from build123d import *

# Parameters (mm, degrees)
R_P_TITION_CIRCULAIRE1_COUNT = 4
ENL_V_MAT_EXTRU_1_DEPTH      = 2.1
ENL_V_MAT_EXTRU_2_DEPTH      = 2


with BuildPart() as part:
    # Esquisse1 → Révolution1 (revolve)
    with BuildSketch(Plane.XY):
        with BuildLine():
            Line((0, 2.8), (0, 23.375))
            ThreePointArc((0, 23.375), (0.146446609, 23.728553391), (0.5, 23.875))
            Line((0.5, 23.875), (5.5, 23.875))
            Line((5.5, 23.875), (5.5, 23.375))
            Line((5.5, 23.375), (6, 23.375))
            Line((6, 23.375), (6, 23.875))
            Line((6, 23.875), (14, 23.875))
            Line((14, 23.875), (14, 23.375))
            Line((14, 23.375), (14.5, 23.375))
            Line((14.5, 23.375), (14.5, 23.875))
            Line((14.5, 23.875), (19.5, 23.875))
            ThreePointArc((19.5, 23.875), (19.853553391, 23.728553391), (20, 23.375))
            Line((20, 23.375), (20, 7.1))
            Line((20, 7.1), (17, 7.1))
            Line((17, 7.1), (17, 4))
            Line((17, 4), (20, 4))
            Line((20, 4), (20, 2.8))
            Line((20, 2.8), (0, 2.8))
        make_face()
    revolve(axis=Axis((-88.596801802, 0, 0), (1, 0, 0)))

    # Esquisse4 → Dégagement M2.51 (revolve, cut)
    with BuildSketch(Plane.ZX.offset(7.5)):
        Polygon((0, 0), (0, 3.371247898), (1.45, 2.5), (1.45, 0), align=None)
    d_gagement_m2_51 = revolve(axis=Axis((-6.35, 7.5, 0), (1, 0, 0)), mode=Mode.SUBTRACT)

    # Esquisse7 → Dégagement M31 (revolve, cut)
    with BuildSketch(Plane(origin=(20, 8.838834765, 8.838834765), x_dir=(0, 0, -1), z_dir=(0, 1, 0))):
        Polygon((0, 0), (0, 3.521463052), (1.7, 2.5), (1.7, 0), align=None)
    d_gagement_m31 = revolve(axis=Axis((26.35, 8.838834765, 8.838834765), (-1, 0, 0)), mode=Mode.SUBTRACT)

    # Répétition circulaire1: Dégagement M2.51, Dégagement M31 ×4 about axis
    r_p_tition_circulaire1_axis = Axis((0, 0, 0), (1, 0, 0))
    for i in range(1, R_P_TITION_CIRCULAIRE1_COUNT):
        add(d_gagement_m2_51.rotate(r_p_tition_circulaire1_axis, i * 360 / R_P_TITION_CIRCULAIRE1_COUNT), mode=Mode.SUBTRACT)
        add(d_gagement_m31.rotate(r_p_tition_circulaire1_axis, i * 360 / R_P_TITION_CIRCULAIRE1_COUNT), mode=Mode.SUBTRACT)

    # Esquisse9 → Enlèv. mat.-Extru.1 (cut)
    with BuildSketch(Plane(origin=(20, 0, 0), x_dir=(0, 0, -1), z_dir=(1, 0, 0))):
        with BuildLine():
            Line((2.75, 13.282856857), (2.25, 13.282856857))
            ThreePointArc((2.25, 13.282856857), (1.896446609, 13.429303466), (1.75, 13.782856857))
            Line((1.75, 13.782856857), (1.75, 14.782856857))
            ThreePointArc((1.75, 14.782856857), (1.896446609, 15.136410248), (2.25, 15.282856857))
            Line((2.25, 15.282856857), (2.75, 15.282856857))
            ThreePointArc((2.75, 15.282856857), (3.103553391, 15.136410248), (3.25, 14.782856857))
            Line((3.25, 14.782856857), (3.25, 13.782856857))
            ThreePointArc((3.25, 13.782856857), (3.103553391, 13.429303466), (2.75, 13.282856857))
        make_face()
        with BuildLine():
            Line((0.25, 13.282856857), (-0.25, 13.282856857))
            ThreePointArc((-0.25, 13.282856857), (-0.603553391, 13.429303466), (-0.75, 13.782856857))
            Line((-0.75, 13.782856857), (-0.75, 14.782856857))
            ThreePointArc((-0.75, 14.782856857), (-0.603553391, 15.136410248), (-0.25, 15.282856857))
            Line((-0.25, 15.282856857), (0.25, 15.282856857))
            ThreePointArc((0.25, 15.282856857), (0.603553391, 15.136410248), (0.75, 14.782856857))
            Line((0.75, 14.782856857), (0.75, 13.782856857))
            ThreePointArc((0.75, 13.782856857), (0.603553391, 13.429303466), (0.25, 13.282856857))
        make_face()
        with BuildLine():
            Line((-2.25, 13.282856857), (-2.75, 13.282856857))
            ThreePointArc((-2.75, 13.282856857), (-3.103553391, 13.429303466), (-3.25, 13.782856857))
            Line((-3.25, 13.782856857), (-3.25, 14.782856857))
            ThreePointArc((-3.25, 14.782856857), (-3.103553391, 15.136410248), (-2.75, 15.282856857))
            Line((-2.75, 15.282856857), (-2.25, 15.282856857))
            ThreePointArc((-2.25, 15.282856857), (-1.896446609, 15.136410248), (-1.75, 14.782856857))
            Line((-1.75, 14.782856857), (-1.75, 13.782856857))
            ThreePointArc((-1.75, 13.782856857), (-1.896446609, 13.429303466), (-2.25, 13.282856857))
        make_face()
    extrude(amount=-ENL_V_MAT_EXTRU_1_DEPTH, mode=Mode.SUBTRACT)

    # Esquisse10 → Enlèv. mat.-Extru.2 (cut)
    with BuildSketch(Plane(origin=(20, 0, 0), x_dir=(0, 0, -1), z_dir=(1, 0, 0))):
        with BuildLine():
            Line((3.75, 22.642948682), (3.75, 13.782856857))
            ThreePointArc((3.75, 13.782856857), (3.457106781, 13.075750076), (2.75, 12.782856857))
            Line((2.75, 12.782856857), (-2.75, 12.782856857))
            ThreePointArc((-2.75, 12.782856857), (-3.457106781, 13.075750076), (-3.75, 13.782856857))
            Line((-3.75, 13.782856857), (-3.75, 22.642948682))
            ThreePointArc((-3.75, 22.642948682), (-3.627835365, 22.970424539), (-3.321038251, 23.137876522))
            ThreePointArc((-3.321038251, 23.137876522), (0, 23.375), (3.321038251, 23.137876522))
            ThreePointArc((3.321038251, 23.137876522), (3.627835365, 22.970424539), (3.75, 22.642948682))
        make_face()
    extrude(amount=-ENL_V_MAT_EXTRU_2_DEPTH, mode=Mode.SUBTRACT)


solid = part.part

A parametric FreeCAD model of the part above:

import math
import FreeCAD as App
import Part
import Sketcher

V = App.Vector
Q = App.Units.Quantity

doc = App.newDocument("Part")
body = doc.addObject("PartDesign::Body", "Body")

sketch1 = body.newObject("Sketcher::SketchObject", "Sketch")
sketch1.AttachmentSupport = (doc.getObject("XY_Plane"), [""])
sketch1.MapMode = "FlatFace"
sketch1.addGeometry([
    Part.LineSegment(V(0, 23.38, 0), V(0, 2.8, 0)),
    Part.LineSegment(V(0, 2.8, 0), V(20, 2.8, 0)),
    Part.LineSegment(V(20, 2.8, 0), V(20, 4, 0)),
    Part.LineSegment(V(20, 4, 0), V(17, 4, 0)),
    Part.LineSegment(V(17, 4, 0), V(17, 7.1, 0)),
    Part.LineSegment(V(17, 7.1, 0), V(20, 7.1, 0)),
    Part.LineSegment(V(20, 7.1, 0), V(20, 23.38, 0)),
    Part.ArcOfCircle(Part.Circle(V(19.5, 23.38, 0), V(0, 0, 1), 0.5), math.radians(0), math.radians(90)),
    Part.LineSegment(V(19.5, 23.88, 0), V(14.5, 23.88, 0)),
    Part.LineSegment(V(14.5, 23.88, 0), V(14.5, 23.38, 0)),
    Part.LineSegment(V(14.5, 23.38, 0), V(14, 23.38, 0)),
    Part.LineSegment(V(14, 23.38, 0), V(14, 23.88, 0)),
    Part.LineSegment(V(14, 23.88, 0), V(6, 23.88, 0)),
    Part.LineSegment(V(6, 23.88, 0), V(6, 23.38, 0)),
    Part.LineSegment(V(6, 23.38, 0), V(5.5, 23.38, 0)),
    Part.LineSegment(V(5.5, 23.38, 0), V(5.5, 23.88, 0)),
    Part.LineSegment(V(5.5, 23.88, 0), V(0.5, 23.88, 0)),
    Part.ArcOfCircle(Part.Circle(V(0.5, 23.38, 0), V(0, 0, 1), 0.5), math.radians(90), math.radians(180)),
], False)
sketch1.addConstraint([
    Sketcher.Constraint("Coincident", 0, 2, 1, 1),
    Sketcher.Constraint("Coincident", 1, 2, 2, 1),
    Sketcher.Constraint("Coincident", 2, 2, 3, 1),
    Sketcher.Constraint("Coincident", 3, 2, 4, 1),
    Sketcher.Constraint("Coincident", 4, 2, 5, 1),
    Sketcher.Constraint("Coincident", 5, 2, 6, 1),
    Sketcher.Constraint("Tangent", 6, 2, 7, 1),
    Sketcher.Constraint("Tangent", 7, 2, 8, 1),
    Sketcher.Constraint("Coincident", 8, 2, 9, 1),
    Sketcher.Constraint("Coincident", 9, 2, 10, 1),
    Sketcher.Constraint("Coincident", 10, 2, 11, 1),
    Sketcher.Constraint("Coincident", 11, 2, 12, 1),
    Sketcher.Constraint("Coincident", 12, 2, 13, 1),
    Sketcher.Constraint("Coincident", 13, 2, 14, 1),
    Sketcher.Constraint("Coincident", 14, 2, 15, 1),
    Sketcher.Constraint("Coincident", 15, 2, 16, 1),
    Sketcher.Constraint("Tangent", 16, 2, 17, 1),
    Sketcher.Constraint("Tangent", 17, 2, 0, 1),
    Sketcher.Constraint("Vertical", 0),
    Sketcher.Constraint("Horizontal", 1),
    Sketcher.Constraint("Vertical", 2),
    Sketcher.Constraint("Horizontal", 3),
    Sketcher.Constraint("Vertical", 4),
    Sketcher.Constraint("Horizontal", 5),
    Sketcher.Constraint("Vertical", 6),
    Sketcher.Constraint("Horizontal", 8),
    Sketcher.Constraint("Vertical", 9),
    Sketcher.Constraint("Horizontal", 10),
    Sketcher.Constraint("Vertical", 11),
    Sketcher.Constraint("Horizontal", 12),
    Sketcher.Constraint("Vertical", 13),
    Sketcher.Constraint("Horizontal", 14),
    Sketcher.Constraint("Vertical", 15),
    Sketcher.Constraint("Horizontal", 16),
    Sketcher.Constraint("Equal", 7, 17),
    Sketcher.Constraint("PointOnObject", 0, 2, -2),
    Sketcher.Constraint("Horizontal", 7, 3, 17, 3),
    Sketcher.Constraint("Horizontal", 6, 2, 9, 2),
    Sketcher.Constraint("Horizontal", 8, 2, 11, 2),
    Sketcher.Constraint("Horizontal", 10, 2, 13, 2),
    Sketcher.Constraint("Vertical", 2, 2, 5, 2),
    Sketcher.Constraint("Equal", 10, 14),
    Sketcher.Constraint("Equal", 8, 16),
    Sketcher.Constraint("Equal", 14, 9),
    Sketcher.Constraint("Radius", 7, Q("0.5 mm")),
    Sketcher.Constraint("DistanceX", 1, 1, 1, 2, Q("20 mm")),
    Sketcher.Constraint("DistanceX", 3, 2, 3, 1, Q("3 mm")),
    Sketcher.Constraint("DistanceX", 8, 2, 8, 1, Q("5 mm")),
    Sketcher.Constraint("DistanceY", 2, 1, 2, 2, Q("1.2 mm")),
    Sketcher.Constraint("DistanceY", 4, 1, 4, 2, Q("3.1 mm")),
    Sketcher.Constraint("DistanceY", -1, 1, 2, 2, Q("4 mm")),
    Sketcher.Constraint("DistanceY", 0, 2, 0, 1, Q("20.575 mm")),
])
revolution = body.newObject("PartDesign::Revolution", "Revolution")
revolution.Profile = sketch1
revolution.ReferenceAxis = (sketch1, ["H_Axis"])
revolution.Angle = 360

sketch2 = body.newObject("Sketcher::SketchObject", "Sketch001")
sketch2.AttachmentSupport = (doc.getObject("XZ_Plane"), [""])
sketch2.MapMode = "FlatFace"
sketch2.AttachmentOffset = App.Placement(V(0, 0, -7.5), App.Rotation())
sketch2.addGeometry([
    Part.LineSegment(V(3.4, 0, 0), V(0, 0, 0)),
    Part.LineSegment(V(0, 0, 0), V(0, 1.4, 0)),
    Part.LineSegment(V(0, 1.4, 0), V(2.5, 1.4, 0)),
    Part.LineSegment(V(2.5, 1.4, 0), V(3.4, 0, 0)),
], False)
sketch2.addConstraint([
    Sketcher.Constraint("Coincident", 0, 2, 1, 1),
    Sketcher.Constraint("Coincident", 1, 2, 2, 1),
    Sketcher.Constraint("Coincident", 2, 2, 3, 1),
    Sketcher.Constraint("Coincident", 3, 2, 0, 1),
    Sketcher.Constraint("Horizontal", 0),
    Sketcher.Constraint("Vertical", 1),
    Sketcher.Constraint("Horizontal", 2),
    Sketcher.Constraint("Coincident", 0, 2, -1, 1),
    Sketcher.Constraint("Angle", 3, Q("-59 deg")),
    Sketcher.Constraint("DistanceX", 2, 1, 2, 2, Q("2.5 mm")),
    Sketcher.Constraint("DistanceY", 1, 1, 1, 2, Q("1.45 mm")),
])
groove = body.newObject("PartDesign::Groove", "Groove")
groove.Profile = sketch2
groove.ReferenceAxis = (sketch2, ["H_Axis"])
groove.Angle = 360

sketch3 = body.newObject("Sketcher::SketchObject", "Sketch002")
sketch3.AttachmentSupport = (doc.getObject("XZ_Plane"), [""])
sketch3.MapMode = "FlatFace"
sketch3.AttachmentOffset = App.Placement(V(0, 0, -8.838835), App.Rotation())
sketch3.addGeometry([
    Part.LineSegment(V(16.5, 8.8, 0), V(20, 8.8, 0)),
    Part.LineSegment(V(20, 8.8, 0), V(20, 7.1, 0)),
    Part.LineSegment(V(20, 7.1, 0), V(17.5, 7.1, 0)),
    Part.LineSegment(V(17.5, 7.1, 0), V(16.5, 8.8, 0)),
], False)
sketch3.addGeometry(Part.LineSegment(V(20, 8.8, 0), V(16.5, 8.8, 0)), True)
sketch3.addConstraint([
    Sketcher.Constraint("Coincident", 0, 2, 1, 1),
    Sketcher.Constraint("Coincident", 1, 2, 2, 1),
    Sketcher.Constraint("Coincident", 2, 2, 3, 1),
    Sketcher.Constraint("Coincident", 3, 2, 0, 1),
    Sketcher.Constraint("Horizontal", 0),
    Sketcher.Constraint("Vertical", 1),
    Sketcher.Constraint("Horizontal", 2),
    Sketcher.Constraint("Horizontal", 4),
    Sketcher.Constraint("Coincident", 4, 1, 0, 2),
    Sketcher.Constraint("Equal", 0, 4),
    Sketcher.Constraint("Angle", 3, Q("121 deg")),
    Sketcher.Constraint("DistanceX", 2, 2, 2, 1, Q("2.5 mm")),
    Sketcher.Constraint("DistanceY", 1, 2, 1, 1, Q("1.7 mm")),
    Sketcher.Constraint("DistanceX", -1, 1, 0, 2, Q("20 mm")),
    Sketcher.Constraint("DistanceY", -1, 1, 0, 2, Q("8.838835 mm")),
])
groove2 = body.newObject("PartDesign::Groove", "Groove001")
groove2.Profile = sketch3
groove2.ReferenceAxis = (sketch3, ["Axis0"])
groove2.Angle = 360
doc.recompute()

polarpattern = body.newObject("PartDesign::PolarPattern", "PolarPattern")
polarpattern.Originals = [groove, groove2]
polarpattern.Axis = (doc.getObject("X_Axis"), [""])
polarpattern.Angle = 360
polarpattern.Occurrences = 4
body.Tip = polarpattern

sketch4 = body.newObject("Sketcher::SketchObject", "Sketch003")
sketch4.AttachmentSupport = (doc.getObject("YZ_Plane"), [""])
sketch4.MapMode = "FlatFace"
sketch4.AttachmentOffset = App.Placement(V(0, 0, 20), App.Rotation())
sketch4.addGeometry([
    Part.LineSegment(V(13.28, -2.25, 0), V(13.28, -2.75, 0)),
    Part.ArcOfCircle(Part.Circle(V(13.78, -2.75, 0), V(0, 0, 1), 0.5), math.radians(180), math.radians(270)),
    Part.LineSegment(V(13.78, -3.25, 0), V(14.78, -3.25, 0)),
    Part.ArcOfCircle(Part.Circle(V(14.78, -2.75, 0), V(0, 0, 1), 0.5), math.radians(-90), math.radians(0)),
    Part.LineSegment(V(15.28, -2.75, 0), V(15.28, -2.25, 0)),
    Part.ArcOfCircle(Part.Circle(V(14.78, -2.25, 0), V(0, 0, 1), 0.5), math.radians(0), math.radians(90)),
    Part.LineSegment(V(14.78, -1.75, 0), V(13.78, -1.75, 0)),
    Part.ArcOfCircle(Part.Circle(V(13.78, -2.25, 0), V(0, 0, 1), 0.5), math.radians(90), math.radians(180)),
    Part.LineSegment(V(13.28, 0.25, 0), V(13.28, -0.25, 0)),
    Part.ArcOfCircle(Part.Circle(V(13.78, -0.25, 0), V(0, 0, 1), 0.5), math.radians(180), math.radians(270)),
    Part.LineSegment(V(13.78, -0.75, 0), V(14.78, -0.75, 0)),
    Part.ArcOfCircle(Part.Circle(V(14.78, -0.25, 0), V(0, 0, 1), 0.5), math.radians(-90), math.radians(0)),
    Part.LineSegment(V(15.28, -0.25, 0), V(15.28, 0.25, 0)),
    Part.ArcOfCircle(Part.Circle(V(14.78, 0.25, 0), V(0, 0, 1), 0.5), math.radians(0), math.radians(90)),
    Part.LineSegment(V(14.78, 0.75, 0), V(13.78, 0.75, 0)),
    Part.ArcOfCircle(Part.Circle(V(13.78, 0.25, 0), V(0, 0, 1), 0.5), math.radians(90), math.radians(180)),
    Part.LineSegment(V(13.28, 2.75, 0), V(13.28, 2.25, 0)),
    Part.ArcOfCircle(Part.Circle(V(13.78, 2.25, 0), V(0, 0, 1), 0.5), math.radians(180), math.radians(270)),
    Part.LineSegment(V(13.78, 1.75, 0), V(14.78, 1.75, 0)),
    Part.ArcOfCircle(Part.Circle(V(14.78, 2.25, 0), V(0, 0, 1), 0.5), math.radians(-90), math.radians(0)),
    Part.LineSegment(V(15.28, 2.25, 0), V(15.28, 2.75, 0)),
    Part.ArcOfCircle(Part.Circle(V(14.78, 2.75, 0), V(0, 0, 1), 0.5), math.radians(0), math.radians(90)),
    Part.LineSegment(V(14.78, 3.25, 0), V(13.78, 3.25, 0)),
    Part.ArcOfCircle(Part.Circle(V(13.78, 2.75, 0), V(0, 0, 1), 0.5), math.radians(90), math.radians(180)),
], False)
sketch4.addConstraint([
    Sketcher.Constraint("Tangent", 0, 2, 1, 1),
    Sketcher.Constraint("Tangent", 1, 2, 2, 1),
    Sketcher.Constraint("Tangent", 2, 2, 3, 1),
    Sketcher.Constraint("Tangent", 3, 2, 4, 1),
    Sketcher.Constraint("Tangent", 4, 2, 5, 1),
    Sketcher.Constraint("Tangent", 5, 2, 6, 1),
    Sketcher.Constraint("Tangent", 6, 2, 7, 1),
    Sketcher.Constraint("Tangent", 7, 2, 0, 1),
    Sketcher.Constraint("Tangent", 8, 2, 9, 1),
    Sketcher.Constraint("Tangent", 9, 2, 10, 1),
    Sketcher.Constraint("Tangent", 10, 2, 11, 1),
    Sketcher.Constraint("Tangent", 11, 2, 12, 1),
    Sketcher.Constraint("Tangent", 12, 2, 13, 1),
    Sketcher.Constraint("Tangent", 13, 2, 14, 1),
    Sketcher.Constraint("Tangent", 14, 2, 15, 1),
    Sketcher.Constraint("Tangent", 15, 2, 8, 1),
    Sketcher.Constraint("Tangent", 16, 2, 17, 1),
    Sketcher.Constraint("Tangent", 17, 2, 18, 1),
    Sketcher.Constraint("Tangent", 18, 2, 19, 1),
    Sketcher.Constraint("Tangent", 19, 2, 20, 1),
    Sketcher.Constraint("Tangent", 20, 2, 21, 1),
    Sketcher.Constraint("Tangent", 21, 2, 22, 1),
    Sketcher.Constraint("Tangent", 22, 2, 23, 1),
    Sketcher.Constraint("Tangent", 23, 2, 16, 1),
    Sketcher.Constraint("Vertical", 0),
    Sketcher.Constraint("Horizontal", 2),
    Sketcher.Constraint("Vertical", 4),
    Sketcher.Constraint("Horizontal", 6),
    Sketcher.Constraint("Vertical", 8),
    Sketcher.Constraint("Horizontal", 10),
    Sketcher.Constraint("Vertical", 12),
    Sketcher.Constraint("Horizontal", 14),
    Sketcher.Constraint("Vertical", 16),
    Sketcher.Constraint("Horizontal", 18),
    Sketcher.Constraint("Vertical", 20),
    Sketcher.Constraint("Horizontal", 22),
    Sketcher.Constraint("Equal", 1, 3),
    Sketcher.Constraint("Equal", 3, 5),
    Sketcher.Constraint("Equal", 5, 7),
    Sketcher.Constraint("Equal", 7, 9),
    Sketcher.Constraint("Equal", 9, 11),
    Sketcher.Constraint("Equal", 11, 13),
    Sketcher.Constraint("Equal", 13, 15),
    Sketcher.Constraint("Equal", 15, 17),
    Sketcher.Constraint("Equal", 17, 19),
    Sketcher.Constraint("Equal", 19, 21),
    Sketcher.Constraint("Equal", 21, 23),
    Sketcher.Constraint("Symmetric", 7, 3, 17, 3, -1),
    Sketcher.Constraint("Symmetric", 3, 3, 21, 3, -1),
    Sketcher.Constraint("Vertical", 7, 3, 9, 3),
    Sketcher.Constraint("Vertical", 5, 3, 11, 3),
    Sketcher.Constraint("Equal", 4, 8),
    Sketcher.Constraint("Radius", 1, Q("0.5 mm")),
    Sketcher.Constraint("DistanceX", 2, 1, 2, 2, Q("1 mm")),
    Sketcher.Constraint("DistanceY", 0, 2, 0, 1, Q("0.5 mm")),
    Sketcher.Constraint("DistanceY", 7, 3, 9, 3, Q("2 mm")),
    Sketcher.Constraint("DistanceY", 15, 3, 17, 3, Q("2 mm")),
    Sketcher.Constraint("DistanceX", -1, 1, 1, 3, Q("13.782857 mm")),
])
pocket1 = body.newObject("PartDesign::Pocket", "Pocket")
pocket1.Profile = sketch4
pocket1.Length = 2.1

sketch5 = body.newObject("Sketcher::SketchObject", "Sketch004")
sketch5.AttachmentSupport = (doc.getObject("YZ_Plane"), [""])
sketch5.MapMode = "FlatFace"
sketch5.AttachmentOffset = App.Placement(V(0, 0, 20), App.Rotation())
sketch5.addGeometry([
    Part.LineSegment(V(13.8, -3.8, 0), V(22.6, -3.8, 0)),
    Part.ArcOfCircle(Part.Circle(V(22.6, -3.2, 0), V(0, 0, 1), 0.5), math.radians(-90), math.radians(-8)),
    Part.ArcOfCircle(Part.Circle(V(0, 0, 0), V(0, 0, 1), 23.4), math.radians(-8.17), math.radians(8.17)),
    Part.ArcOfCircle(Part.Circle(V(22.6, 3.2, 0), V(0, 0, 1), 0.5), math.radians(8), math.radians(90)),
    Part.LineSegment(V(22.6, 3.8, 0), V(13.8, 3.8, 0)),
    Part.ArcOfCircle(Part.Circle(V(13.8, 2.7, 0), V(0, 0, 1), 1), math.radians(90), math.radians(180)),
    Part.LineSegment(V(12.8, 2.8, 0), V(12.8, -2.8, 0)),
    Part.ArcOfCircle(Part.Circle(V(13.8, -2.7, 0), V(0, 0, 1), 1), math.radians(-180), math.radians(-90)),
], False)
sketch5.addConstraint([
    Sketcher.Constraint("Tangent", 0, 2, 1, 1),
    Sketcher.Constraint("Tangent", 1, 2, 2, 1),
    Sketcher.Constraint("Tangent", 2, 2, 3, 1),
    Sketcher.Constraint("Tangent", 3, 2, 4, 1),
    Sketcher.Constraint("Tangent", 4, 2, 5, 1),
    Sketcher.Constraint("Tangent", 5, 2, 6, 1),
    Sketcher.Constraint("Tangent", 6, 2, 7, 1),
    Sketcher.Constraint("Tangent", 7, 2, 0, 1),
    Sketcher.Constraint("Horizontal", 0),
    Sketcher.Constraint("Horizontal", 4),
    Sketcher.Constraint("Vertical", 6),
    Sketcher.Constraint("Coincident", 2, 3, -1, 1),
    Sketcher.Constraint("Equal", 1, 3),
    Sketcher.Constraint("Equal", 5, 7),
    Sketcher.Constraint("Vertical", 1, 3, 3, 3),
    Sketcher.Constraint("Radius", 5, Q("1 mm")),
    Sketcher.Constraint("Radius", 1, Q("0.5 mm")),
    Sketcher.Constraint("DistanceY", 6, 2, 6, 1, Q("5.5 mm")),
    Sketcher.Constraint("Radius", 2, Q("23.375 mm")),
    Sketcher.Constraint("DistanceX", 0, 1, 0, 2, Q("8.860092 mm")),
])
pocket2 = body.newObject("PartDesign::Pocket", "Pocket001")
pocket2.Profile = sketch5
pocket2.Length = 2

doc.recompute()
